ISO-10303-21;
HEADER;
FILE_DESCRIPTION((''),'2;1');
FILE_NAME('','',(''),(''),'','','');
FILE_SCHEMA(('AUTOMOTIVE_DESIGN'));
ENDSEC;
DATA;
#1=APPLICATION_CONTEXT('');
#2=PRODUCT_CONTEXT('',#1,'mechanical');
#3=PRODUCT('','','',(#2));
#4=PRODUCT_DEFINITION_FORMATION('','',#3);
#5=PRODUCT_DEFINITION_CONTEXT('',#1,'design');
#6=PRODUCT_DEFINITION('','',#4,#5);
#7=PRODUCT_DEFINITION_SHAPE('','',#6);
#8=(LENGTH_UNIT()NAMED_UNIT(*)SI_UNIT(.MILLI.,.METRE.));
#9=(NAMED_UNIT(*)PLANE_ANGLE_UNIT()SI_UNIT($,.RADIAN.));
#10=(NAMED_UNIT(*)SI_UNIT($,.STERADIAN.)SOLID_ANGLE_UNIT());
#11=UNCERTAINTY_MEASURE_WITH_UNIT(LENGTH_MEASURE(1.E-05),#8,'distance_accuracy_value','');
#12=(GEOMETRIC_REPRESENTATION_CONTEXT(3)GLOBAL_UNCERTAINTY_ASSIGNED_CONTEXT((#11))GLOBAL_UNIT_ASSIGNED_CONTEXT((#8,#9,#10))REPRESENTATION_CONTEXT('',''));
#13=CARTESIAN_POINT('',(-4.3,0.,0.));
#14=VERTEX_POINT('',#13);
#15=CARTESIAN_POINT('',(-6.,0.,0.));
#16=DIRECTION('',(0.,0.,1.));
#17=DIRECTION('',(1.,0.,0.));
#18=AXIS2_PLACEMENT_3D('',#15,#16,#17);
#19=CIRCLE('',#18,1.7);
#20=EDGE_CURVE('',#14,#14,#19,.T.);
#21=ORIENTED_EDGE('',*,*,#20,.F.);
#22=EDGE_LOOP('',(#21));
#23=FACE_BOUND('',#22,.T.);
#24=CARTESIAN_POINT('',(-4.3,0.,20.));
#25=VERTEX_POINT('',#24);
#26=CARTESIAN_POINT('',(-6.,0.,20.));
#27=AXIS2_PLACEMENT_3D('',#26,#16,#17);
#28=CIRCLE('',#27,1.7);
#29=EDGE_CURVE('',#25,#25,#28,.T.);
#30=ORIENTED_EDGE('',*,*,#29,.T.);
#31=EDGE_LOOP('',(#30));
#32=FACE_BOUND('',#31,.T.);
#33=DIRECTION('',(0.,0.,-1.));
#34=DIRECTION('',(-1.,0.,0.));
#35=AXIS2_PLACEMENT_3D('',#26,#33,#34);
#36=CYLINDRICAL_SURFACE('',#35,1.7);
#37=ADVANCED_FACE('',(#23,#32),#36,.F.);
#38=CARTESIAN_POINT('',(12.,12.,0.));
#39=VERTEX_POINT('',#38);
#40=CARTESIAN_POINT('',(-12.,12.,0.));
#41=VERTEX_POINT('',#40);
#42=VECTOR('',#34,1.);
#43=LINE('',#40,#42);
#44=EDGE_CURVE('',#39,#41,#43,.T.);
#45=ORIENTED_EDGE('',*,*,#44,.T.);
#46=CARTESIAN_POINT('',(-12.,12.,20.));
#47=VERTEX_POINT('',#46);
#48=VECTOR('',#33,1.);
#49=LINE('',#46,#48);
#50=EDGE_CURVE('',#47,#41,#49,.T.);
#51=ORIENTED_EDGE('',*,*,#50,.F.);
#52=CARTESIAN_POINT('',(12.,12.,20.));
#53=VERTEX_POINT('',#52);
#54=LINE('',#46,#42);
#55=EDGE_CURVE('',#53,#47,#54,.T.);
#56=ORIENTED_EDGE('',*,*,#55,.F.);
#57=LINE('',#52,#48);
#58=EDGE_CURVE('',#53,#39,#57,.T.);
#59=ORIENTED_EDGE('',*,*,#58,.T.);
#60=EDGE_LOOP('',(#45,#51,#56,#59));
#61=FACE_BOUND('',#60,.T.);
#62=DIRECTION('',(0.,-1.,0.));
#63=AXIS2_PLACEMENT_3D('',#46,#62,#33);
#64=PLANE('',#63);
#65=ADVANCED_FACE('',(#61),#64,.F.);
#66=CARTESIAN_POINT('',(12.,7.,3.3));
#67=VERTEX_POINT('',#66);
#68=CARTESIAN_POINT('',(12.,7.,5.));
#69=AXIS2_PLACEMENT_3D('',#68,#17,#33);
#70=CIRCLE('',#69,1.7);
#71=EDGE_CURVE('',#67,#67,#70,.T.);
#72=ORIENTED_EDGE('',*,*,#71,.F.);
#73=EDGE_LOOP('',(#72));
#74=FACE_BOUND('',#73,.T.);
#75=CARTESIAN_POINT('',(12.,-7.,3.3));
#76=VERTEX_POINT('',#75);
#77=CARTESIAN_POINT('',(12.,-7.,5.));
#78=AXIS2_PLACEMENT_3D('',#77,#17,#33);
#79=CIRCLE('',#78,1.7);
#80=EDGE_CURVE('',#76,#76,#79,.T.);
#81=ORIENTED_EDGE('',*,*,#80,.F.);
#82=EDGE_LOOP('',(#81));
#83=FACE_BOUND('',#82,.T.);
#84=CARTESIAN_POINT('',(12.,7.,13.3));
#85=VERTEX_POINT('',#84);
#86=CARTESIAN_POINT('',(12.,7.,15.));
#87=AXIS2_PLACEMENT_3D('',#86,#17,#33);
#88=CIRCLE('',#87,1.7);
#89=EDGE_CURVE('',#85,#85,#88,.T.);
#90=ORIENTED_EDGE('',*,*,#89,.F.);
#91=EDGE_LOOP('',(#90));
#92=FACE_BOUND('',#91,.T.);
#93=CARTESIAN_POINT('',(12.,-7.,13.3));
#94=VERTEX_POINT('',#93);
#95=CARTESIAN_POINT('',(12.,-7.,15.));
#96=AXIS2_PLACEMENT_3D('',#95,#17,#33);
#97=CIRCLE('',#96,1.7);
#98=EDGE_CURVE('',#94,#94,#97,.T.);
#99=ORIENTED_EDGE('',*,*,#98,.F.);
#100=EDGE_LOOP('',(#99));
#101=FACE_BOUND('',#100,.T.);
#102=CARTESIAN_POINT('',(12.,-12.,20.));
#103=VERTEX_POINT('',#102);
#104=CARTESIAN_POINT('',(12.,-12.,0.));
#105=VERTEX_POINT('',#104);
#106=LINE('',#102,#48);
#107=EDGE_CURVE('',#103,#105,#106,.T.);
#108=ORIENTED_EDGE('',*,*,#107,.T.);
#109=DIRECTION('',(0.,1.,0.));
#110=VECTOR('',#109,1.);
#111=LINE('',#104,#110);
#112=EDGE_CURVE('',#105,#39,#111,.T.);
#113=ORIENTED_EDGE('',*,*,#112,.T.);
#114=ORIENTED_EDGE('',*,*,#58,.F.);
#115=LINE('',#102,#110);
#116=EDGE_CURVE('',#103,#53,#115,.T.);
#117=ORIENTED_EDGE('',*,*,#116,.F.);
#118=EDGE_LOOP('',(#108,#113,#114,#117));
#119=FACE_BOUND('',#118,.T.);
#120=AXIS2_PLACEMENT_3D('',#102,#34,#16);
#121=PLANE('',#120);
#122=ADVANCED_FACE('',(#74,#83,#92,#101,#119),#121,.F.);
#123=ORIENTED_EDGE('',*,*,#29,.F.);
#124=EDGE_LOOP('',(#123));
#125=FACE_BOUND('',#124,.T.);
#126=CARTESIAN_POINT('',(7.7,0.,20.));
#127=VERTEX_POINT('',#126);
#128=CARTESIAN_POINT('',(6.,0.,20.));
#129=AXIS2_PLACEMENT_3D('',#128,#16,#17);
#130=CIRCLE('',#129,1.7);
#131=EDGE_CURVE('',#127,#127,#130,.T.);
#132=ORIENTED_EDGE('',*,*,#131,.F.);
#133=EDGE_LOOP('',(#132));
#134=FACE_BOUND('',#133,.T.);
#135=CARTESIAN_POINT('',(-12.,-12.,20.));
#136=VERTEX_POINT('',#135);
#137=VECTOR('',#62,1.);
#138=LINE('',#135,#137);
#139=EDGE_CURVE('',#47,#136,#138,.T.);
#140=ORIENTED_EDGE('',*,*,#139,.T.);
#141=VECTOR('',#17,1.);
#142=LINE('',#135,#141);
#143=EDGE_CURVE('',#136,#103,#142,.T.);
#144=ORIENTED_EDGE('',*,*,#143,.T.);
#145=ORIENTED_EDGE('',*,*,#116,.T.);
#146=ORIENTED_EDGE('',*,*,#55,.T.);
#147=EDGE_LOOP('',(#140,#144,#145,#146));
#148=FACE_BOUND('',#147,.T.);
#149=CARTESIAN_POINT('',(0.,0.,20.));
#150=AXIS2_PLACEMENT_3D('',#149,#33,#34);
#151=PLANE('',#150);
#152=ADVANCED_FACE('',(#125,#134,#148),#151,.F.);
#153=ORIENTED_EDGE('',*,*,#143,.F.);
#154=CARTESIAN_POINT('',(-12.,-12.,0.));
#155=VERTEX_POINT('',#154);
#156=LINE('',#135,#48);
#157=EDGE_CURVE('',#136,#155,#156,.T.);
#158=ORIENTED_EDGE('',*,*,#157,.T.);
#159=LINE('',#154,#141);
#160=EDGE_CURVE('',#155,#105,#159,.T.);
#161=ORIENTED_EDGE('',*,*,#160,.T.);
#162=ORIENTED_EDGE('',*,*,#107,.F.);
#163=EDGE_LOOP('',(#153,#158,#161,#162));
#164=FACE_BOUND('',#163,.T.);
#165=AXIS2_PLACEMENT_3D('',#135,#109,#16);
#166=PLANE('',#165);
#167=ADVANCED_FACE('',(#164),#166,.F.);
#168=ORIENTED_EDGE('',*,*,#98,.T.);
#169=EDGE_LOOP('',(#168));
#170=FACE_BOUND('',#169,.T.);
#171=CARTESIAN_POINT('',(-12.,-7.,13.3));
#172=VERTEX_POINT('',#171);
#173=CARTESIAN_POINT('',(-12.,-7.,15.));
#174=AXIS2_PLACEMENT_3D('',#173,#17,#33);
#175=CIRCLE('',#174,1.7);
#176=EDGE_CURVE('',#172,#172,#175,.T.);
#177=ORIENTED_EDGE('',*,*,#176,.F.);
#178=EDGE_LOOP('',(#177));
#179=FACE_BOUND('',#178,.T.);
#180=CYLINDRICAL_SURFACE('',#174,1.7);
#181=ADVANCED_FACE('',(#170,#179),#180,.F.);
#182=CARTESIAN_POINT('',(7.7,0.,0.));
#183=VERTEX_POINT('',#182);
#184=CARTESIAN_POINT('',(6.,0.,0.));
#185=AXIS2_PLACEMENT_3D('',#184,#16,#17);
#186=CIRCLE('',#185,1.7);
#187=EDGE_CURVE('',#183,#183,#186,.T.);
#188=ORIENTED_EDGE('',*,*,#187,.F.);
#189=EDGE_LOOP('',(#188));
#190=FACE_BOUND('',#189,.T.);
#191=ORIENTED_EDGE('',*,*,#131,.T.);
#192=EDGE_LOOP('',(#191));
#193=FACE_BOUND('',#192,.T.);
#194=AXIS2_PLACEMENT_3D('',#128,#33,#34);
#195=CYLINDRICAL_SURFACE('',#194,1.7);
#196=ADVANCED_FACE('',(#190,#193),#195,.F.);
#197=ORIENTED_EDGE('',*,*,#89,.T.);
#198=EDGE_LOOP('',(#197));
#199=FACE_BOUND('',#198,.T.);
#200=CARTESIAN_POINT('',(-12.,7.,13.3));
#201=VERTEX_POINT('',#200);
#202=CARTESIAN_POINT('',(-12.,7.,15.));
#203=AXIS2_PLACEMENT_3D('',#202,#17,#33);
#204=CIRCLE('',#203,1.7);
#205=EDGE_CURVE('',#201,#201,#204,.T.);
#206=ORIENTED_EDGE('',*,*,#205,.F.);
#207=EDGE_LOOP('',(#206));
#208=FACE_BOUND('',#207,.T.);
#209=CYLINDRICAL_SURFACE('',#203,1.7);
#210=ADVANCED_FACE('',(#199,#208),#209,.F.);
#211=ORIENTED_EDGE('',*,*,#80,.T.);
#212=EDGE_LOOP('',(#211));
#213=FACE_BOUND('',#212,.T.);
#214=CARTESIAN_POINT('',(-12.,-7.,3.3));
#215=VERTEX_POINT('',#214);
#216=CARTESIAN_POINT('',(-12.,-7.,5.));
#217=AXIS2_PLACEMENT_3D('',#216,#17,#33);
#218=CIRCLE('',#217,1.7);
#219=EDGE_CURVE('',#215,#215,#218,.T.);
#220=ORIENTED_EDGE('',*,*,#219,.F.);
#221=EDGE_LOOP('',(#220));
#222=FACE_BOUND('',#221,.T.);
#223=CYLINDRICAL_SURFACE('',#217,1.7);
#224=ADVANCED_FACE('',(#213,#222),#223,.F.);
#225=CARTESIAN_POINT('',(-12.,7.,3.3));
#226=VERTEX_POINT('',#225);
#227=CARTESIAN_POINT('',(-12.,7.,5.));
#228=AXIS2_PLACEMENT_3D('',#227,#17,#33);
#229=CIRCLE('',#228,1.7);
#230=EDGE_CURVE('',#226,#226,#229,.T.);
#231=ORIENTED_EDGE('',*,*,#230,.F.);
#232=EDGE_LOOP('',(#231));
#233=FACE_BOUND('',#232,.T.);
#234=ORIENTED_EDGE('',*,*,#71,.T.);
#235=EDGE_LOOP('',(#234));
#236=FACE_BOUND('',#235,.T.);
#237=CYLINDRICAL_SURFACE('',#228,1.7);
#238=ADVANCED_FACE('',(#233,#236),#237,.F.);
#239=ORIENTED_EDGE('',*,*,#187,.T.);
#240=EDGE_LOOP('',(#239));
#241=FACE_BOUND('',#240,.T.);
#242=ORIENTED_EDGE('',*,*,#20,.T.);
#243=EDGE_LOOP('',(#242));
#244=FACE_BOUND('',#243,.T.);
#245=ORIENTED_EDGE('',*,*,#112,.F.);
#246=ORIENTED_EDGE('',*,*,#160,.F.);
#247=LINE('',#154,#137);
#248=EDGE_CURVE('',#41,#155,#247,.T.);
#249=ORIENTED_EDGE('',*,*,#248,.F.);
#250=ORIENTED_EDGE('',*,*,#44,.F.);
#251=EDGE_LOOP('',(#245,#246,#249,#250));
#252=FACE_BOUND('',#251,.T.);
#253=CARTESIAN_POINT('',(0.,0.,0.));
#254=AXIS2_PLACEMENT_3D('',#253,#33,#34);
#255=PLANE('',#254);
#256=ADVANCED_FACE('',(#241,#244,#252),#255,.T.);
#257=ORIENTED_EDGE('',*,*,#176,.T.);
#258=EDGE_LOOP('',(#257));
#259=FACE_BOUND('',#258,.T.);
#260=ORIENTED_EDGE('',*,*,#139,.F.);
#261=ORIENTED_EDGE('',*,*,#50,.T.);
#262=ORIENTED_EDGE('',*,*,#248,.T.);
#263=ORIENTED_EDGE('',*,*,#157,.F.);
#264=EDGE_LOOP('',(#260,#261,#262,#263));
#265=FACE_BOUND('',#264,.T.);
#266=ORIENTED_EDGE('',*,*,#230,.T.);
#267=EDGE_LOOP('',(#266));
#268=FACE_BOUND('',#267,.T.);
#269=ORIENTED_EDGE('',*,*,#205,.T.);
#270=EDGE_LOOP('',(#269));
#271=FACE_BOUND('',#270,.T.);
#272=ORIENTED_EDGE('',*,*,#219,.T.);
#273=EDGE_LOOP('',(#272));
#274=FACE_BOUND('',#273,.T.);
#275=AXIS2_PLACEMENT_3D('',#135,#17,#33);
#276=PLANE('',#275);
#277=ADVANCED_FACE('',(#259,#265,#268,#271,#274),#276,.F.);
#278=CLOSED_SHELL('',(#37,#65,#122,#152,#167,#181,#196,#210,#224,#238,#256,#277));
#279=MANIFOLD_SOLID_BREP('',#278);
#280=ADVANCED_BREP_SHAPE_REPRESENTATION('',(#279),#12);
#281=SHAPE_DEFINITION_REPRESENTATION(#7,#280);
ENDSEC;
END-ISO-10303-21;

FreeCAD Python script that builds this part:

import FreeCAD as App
import Part
import Sketcher

V = App.Vector


def add_polygon(sketch, points):
    """Adds a closed chain of lines whose ends are joined by coincident constraints."""
    first, n = sketch.GeometryCount, len(points)
    for a, b in zip(points, points[1:] + points[:1]):
        sketch.addGeometry(Part.LineSegment(App.Vector(*a, 0), App.Vector(*b, 0)), False)
    for i in range(n):
        sketch.addConstraint(Sketcher.Constraint("Coincident", first + i, 2, first + (i + 1) % n, 1))

doc = App.newDocument("Part")
body = doc.addObject("PartDesign::Body", "Body")

sketch1 = body.newObject("Sketcher::SketchObject", "Sketch")
sketch1.AttachmentSupport = (doc.getObject("XY_Plane"), [""])
sketch1.MapMode = "FlatFace"
add_polygon(sketch1, [(-12, 12), (-12, -12), (12, -12), (12, 12)])
sketch1.addGeometry(Part.Circle(V(-6, 0, 0), V(0, 0, 1), 1.7), False)
sketch1.addGeometry(Part.Circle(V(6, 0, 0), V(0, 0, 1), 1.7), False)
sketch1.addConstraint(Sketcher.Constraint("Vertical", 0))
sketch1.addConstraint(Sketcher.Constraint("Horizontal", 1))
sketch1.addConstraint(Sketcher.Constraint("Vertical", 2))
sketch1.addConstraint(Sketcher.Constraint("Horizontal", 3))
sketch1.addConstraint(Sketcher.Constraint("Equal", 4, 5))
sketch1.addConstraint(Sketcher.Constraint("Symmetric", 4, 3, 5, 3, -1, 1))
sketch1.addConstraint(Sketcher.Constraint("Symmetric", 0, 2, 2, 2, -1, 1))
sketch1.addConstraint(Sketcher.Constraint("PointOnObject", 4, 3, -1))
sketch1.addConstraint(Sketcher.Constraint("Equal", 3, 0))
sketch1.addConstraint(Sketcher.Constraint("Diameter", 4, 3.4))
sketch1.addConstraint(Sketcher.Constraint("DistanceX", 1, 1, 1, 2, 24.0))
sketch1.addConstraint(Sketcher.Constraint("DistanceX", 4, 3, -1, 1, 6.0))
pad1 = body.newObject("PartDesign::Pad", "Pad")
pad1.Profile = sketch1
pad1.Length = 20

sketch2 = body.newObject("Sketcher::SketchObject", "Sketch001")
sketch2.AttachmentSupport = (doc.getObject("YZ_Plane"), [""])
sketch2.MapMode = "FlatFace"
sketch2.addGeometry(Part.Circle(V(-7, 5, 0), V(0, 0, 1), 1.7), False)
sketch2.addGeometry(Part.Circle(V(-7, 15, 0), V(0, 0, 1), 1.7), False)
sketch2.addGeometry(Part.Circle(V(7, 5, 0), V(0, 0, 1), 1.7), False)
sketch2.addGeometry(Part.Circle(V(7, 15, 0), V(0, 0, 1), 1.7), False)
sketch2.addConstraint(Sketcher.Constraint("Equal", 0, 1))
sketch2.addConstraint(Sketcher.Constraint("Equal", 1, 2))
sketch2.addConstraint(Sketcher.Constraint("Equal", 2, 3))
sketch2.addConstraint(Sketcher.Constraint("Symmetric", 0, 3, 2, 3, -2))
sketch2.addConstraint(Sketcher.Constraint("Symmetric", 1, 3, 3, 3, -2))
sketch2.addConstraint(Sketcher.Constraint("Vertical", 0, 3, 1, 3))
sketch2.addConstraint(Sketcher.Constraint("Diameter", 0, 3.4))
sketch2.addConstraint(Sketcher.Constraint("DistanceX", 0, 3, -1, 1, 7.0))
sketch2.addConstraint(Sketcher.Constraint("DistanceY", -1, 1, 0, 3, 5.0))
sketch2.addConstraint(Sketcher.Constraint("DistanceY", -1, 1, 1, 3, 15.0))
pocket1 = body.newObject("PartDesign::Pocket", "Pocket")
pocket1.Profile = sketch2
pocket1.Type = "ThroughAll"
pocket1.Midplane = True

doc.recompute()
